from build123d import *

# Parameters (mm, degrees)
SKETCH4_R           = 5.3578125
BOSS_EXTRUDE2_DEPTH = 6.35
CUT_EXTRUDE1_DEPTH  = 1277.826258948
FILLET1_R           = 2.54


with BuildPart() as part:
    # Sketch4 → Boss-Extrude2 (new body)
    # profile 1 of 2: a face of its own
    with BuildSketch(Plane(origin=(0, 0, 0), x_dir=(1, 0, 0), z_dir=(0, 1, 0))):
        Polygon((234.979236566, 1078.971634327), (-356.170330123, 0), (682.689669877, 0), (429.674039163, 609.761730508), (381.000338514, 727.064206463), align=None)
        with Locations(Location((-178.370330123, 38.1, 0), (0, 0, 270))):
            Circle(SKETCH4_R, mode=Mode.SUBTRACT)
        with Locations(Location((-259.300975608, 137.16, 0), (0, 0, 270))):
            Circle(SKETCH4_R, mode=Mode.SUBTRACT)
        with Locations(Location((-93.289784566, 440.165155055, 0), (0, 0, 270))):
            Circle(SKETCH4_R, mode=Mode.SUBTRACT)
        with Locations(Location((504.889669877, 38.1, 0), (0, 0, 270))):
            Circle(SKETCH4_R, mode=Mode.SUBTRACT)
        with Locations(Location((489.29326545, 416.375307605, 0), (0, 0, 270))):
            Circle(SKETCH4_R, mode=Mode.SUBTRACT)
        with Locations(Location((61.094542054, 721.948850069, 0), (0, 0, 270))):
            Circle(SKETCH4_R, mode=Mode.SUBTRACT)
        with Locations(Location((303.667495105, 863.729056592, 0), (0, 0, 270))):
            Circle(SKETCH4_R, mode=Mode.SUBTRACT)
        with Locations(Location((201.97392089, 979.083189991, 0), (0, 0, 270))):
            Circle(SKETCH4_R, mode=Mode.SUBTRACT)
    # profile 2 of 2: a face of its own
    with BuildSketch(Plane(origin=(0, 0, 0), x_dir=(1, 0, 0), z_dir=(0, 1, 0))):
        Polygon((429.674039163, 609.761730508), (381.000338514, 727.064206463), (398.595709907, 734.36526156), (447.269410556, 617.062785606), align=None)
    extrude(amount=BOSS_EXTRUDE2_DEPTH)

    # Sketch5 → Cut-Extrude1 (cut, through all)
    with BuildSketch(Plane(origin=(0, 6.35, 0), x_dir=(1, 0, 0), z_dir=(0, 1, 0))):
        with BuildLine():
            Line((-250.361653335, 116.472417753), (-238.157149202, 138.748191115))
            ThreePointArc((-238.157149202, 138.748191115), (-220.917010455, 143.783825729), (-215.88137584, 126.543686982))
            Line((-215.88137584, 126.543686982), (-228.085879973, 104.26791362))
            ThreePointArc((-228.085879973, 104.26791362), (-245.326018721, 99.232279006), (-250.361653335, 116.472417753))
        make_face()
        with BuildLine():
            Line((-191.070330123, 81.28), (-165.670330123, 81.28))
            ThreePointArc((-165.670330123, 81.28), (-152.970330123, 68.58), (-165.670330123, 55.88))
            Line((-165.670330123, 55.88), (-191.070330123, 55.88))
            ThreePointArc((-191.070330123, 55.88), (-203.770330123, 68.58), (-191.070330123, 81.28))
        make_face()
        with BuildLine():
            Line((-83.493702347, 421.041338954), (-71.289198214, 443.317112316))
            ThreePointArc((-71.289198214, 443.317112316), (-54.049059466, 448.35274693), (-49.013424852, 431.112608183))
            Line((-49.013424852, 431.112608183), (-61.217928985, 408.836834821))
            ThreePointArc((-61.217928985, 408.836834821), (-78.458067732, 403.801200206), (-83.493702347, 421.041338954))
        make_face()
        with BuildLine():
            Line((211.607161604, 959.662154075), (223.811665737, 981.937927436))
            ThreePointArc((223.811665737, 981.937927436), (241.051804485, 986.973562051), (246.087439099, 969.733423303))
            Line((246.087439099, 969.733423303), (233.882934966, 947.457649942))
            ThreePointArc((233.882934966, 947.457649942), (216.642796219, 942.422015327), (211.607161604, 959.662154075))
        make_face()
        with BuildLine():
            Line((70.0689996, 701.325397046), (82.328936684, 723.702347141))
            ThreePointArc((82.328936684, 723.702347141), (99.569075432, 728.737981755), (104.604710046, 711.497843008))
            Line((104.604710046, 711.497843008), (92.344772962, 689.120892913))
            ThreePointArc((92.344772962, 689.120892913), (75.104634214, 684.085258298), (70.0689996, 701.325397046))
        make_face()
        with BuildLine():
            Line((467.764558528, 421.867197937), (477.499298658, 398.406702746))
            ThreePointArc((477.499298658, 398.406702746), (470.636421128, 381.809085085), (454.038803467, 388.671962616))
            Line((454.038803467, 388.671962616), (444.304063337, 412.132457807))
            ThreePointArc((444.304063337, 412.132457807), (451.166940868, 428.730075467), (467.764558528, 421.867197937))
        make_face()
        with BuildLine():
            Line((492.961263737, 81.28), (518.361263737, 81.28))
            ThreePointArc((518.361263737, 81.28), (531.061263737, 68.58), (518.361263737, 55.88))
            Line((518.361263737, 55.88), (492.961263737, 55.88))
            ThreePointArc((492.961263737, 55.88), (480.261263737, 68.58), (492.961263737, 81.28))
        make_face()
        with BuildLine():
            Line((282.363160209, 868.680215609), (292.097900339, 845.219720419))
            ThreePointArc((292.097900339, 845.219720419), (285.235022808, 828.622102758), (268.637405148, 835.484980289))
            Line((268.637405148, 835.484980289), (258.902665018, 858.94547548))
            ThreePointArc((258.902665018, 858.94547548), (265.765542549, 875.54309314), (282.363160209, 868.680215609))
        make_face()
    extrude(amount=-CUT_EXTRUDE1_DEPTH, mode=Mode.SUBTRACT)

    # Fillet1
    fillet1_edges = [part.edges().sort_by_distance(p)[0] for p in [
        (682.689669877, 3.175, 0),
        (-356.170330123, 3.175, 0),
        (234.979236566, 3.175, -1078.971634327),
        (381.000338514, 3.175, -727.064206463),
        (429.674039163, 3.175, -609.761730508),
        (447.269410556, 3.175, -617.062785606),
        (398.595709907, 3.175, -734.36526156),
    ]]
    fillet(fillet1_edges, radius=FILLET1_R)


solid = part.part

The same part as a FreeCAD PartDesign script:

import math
import FreeCAD as App
import Part
import Sketcher

V = App.Vector
Q = App.Units.Quantity


def edges_at(feature, points):
    """Names of the edges that pass closest to the given points."""
    edges = feature.Shape.Edges
    near = lambda p: min(range(len(edges)), key=lambda i: edges[i].distToShape(Part.Vertex(*p))[0])
    return sorted({f"Edge{near(p) + 1}" for p in points})


def add_polygon(sketch, points):
    """Adds a closed chain of lines whose ends are joined by coincident constraints."""
    first, n = sketch.GeometryCount, len(points)
    for a, b in zip(points, points[1:] + points[:1]):
        sketch.addGeometry(Part.LineSegment(App.Vector(*a, 0), App.Vector(*b, 0)), False)
    for i in range(n):
        sketch.addConstraint(Sketcher.Constraint("Coincident", first + i, 2, first + (i + 1) % n, 1))

doc = App.newDocument("Part")
body = doc.addObject("PartDesign::Body", "Body")

# Sketch on XZ plane
sketch1 = body.newObject("Sketcher::SketchObject", "Sketch")
sketch1.AttachmentSupport = (doc.getObject("XZ_Plane"), [""])
sketch1.MapMode = "FlatFace"
add_polygon(sketch1, [(235, -1079), (-356, 0), (683, 0), (430, -610), (447, -617), (399, -734), (381, -727)])  # lines 0-6
sketch1.addGeometry(Part.Circle(V(-178, -38, 0), V(0, 0, 1), 5), False)  # 7
sketch1.addGeometry(Part.Circle(V(-259, -137, 0), V(0, 0, 1), 5), False)  # 8
sketch1.addGeometry(Part.Circle(V(-93, -440, 0), V(0, 0, 1), 5), False)  # 9
sketch1.addGeometry(Part.Circle(V(505, -38, 0), V(0, 0, 1), 5), False)  # 10
sketch1.addGeometry(Part.Circle(V(489, -416, 0), V(0, 0, 1), 5), False)  # 11
sketch1.addGeometry(Part.Circle(V(61, -722, 0), V(0, 0, 1), 5), False)  # 12
sketch1.addGeometry(Part.Circle(V(304, -864, 0), V(0, 0, 1), 5), False)  # 13
sketch1.addGeometry(Part.Circle(V(202, -979, 0), V(0, 0, 1), 5), False)  # 14
sketch1.addConstraint(Sketcher.Constraint("Horizontal", 1))
sketch1.addConstraint(Sketcher.Constraint("Equal", 7, 8))
sketch1.addConstraint(Sketcher.Constraint("Equal", 8, 9))
sketch1.addConstraint(Sketcher.Constraint("Equal", 9, 10))
sketch1.addConstraint(Sketcher.Constraint("Equal", 10, 11))
sketch1.addConstraint(Sketcher.Constraint("Equal", 11, 12))
sketch1.addConstraint(Sketcher.Constraint("Equal", 12, 13))
sketch1.addConstraint(Sketcher.Constraint("Equal", 13, 14))
sketch1.addConstraint(Sketcher.Constraint("PointOnObject", 0, 2, -1))
sketch1.addConstraint(Sketcher.Constraint("Perpendicular", 2, 3))
sketch1.addConstraint(Sketcher.Constraint("Perpendicular", 3, 4))
sketch1.addConstraint(Sketcher.Constraint("Perpendicular", 4, 5))
sketch1.addConstraint(Sketcher.Constraint("Perpendicular", 5, 6))
sketch1.addConstraint(Sketcher.Constraint("Horizontal", 7, 3, 10, 3))
sketch1.addConstraint(Sketcher.Constraint("Equal", 3, 5))
sketch1.addConstraint(Sketcher.Constraint("Distance", 4, Q("5 in")))
sketch1.addConstraint(Sketcher.Constraint("Distance", 6, Q("15 in")))
sketch1.addConstraint(Sketcher.Constraint("Diameter", 7, Q("0.421875 in")))
sketch1.addConstraint(Sketcher.Constraint("DistanceX", 1, 1, 1, 2, Q("40.9 in")))
sketch1.addConstraint(Sketcher.Constraint("DistanceX", 0, 2, 7, 3, Q("7 in")))
sketch1.addConstraint(Sketcher.Constraint("DistanceX", 10, 3, 1, 2, Q("7 in")))
sketch1.addConstraint(Sketcher.Constraint("DistanceY", 7, 3, -1, 1, Q("1.5 in")))
sketch1.addConstraint(Sketcher.Constraint("DistanceY", 8, 3, -1, 1, Q("5.4 in")))
sketch1.addConstraint(Sketcher.Constraint("Distance", 3, Q("0.75 in")))
sketch1.addConstraint(Sketcher.Constraint("Distance", 0, Q("48.437 in")))
sketch1.addConstraint(Sketcher.Constraint("Distance", 2, Q("25.991 in")))
sketch1.addConstraint(Sketcher.Constraint("DistanceX", 8, 3, -1, 1, Q("10.2086998 in")))
sketch1.addConstraint(Sketcher.Constraint("DistanceX", 13, 3, 5, 2, Q("3.0446001 in")))
sketch1.addConstraint(Sketcher.Constraint("DistanceY", 13, 3, 9, 3, 423.563902))
sketch1.addConstraint(Sketcher.Constraint("DistanceX", 7, 3, -1, 1, 178.37033))
sketch1.addConstraint(Sketcher.Constraint("DistanceY", 12, 3, -1, 1, 721.94885))
sketch1.addConstraint(Sketcher.Constraint("DistanceX", -1, 1, 14, 3, 201.973921))
sketch1.addConstraint(Sketcher.Constraint("DistanceY", 14, 3, -1, 1, 979.08319))
sketch1.addConstraint(Sketcher.Constraint("DistanceX", 8, 3, 9, 3, 166.011191))
sketch1.addConstraint(Sketcher.Constraint("DistanceX", 9, 3, 11, 3, 582.58305))
sketch1.addConstraint(Sketcher.Constraint("DistanceY", 13, 3, 11, 3, 447.353749))
sketch1.addConstraint(Sketcher.Constraint("DistanceX", 12, 3, 14, 3, 140.879379))
sketch1.addConstraint(Sketcher.Constraint("DistanceY", 3, 2, 11, 3, 200.687478))
pad1 = body.newObject("PartDesign::Pad", "Pad")
pad1.Profile = sketch1
pad1.Length = Q("0.25 in")
pad1.Reversed = True

# Sketch on XZ plane
sketch2 = body.newObject("Sketcher::SketchObject", "Sketch001")
sketch2.AttachmentSupport = (doc.getObject("XZ_Plane"), [""])
sketch2.MapMode = "FlatFace"
sketch2.AttachmentOffset = App.Placement(V(0, 0, -0.25 * 25.4), App.Rotation())
sketch2.addGeometry(Part.LineSegment(V(-238, -139, 0), V(-250, -116, 0)), False)
sketch2.addGeometry(Part.ArcOfCircle(Part.Circle(V(-239, -110, 0), V(0, 0, 1), 13), math.radians(29), math.radians(209)), False)
sketch2.addGeometry(Part.LineSegment(V(-228, -104, 0), V(-216, -127, 0)), False)
sketch2.addGeometry(Part.ArcOfCircle(Part.Circle(V(-227, -133, 0), V(0, 0, 1), 13), math.radians(-151), math.radians(29)), False)
sketch2.addGeometry(Part.LineSegment(V(-166, -81, 0), V(-191, -81, 0)), False)
sketch2.addGeometry(Part.ArcOfCircle(Part.Circle(V(-191, -69, 0), V(0, 0, 1), 13), math.radians(90), math.radians(270)), False)
sketch2.addGeometry(Part.LineSegment(V(-191, -56, 0), V(-166, -56, 0)), False)
sketch2.addGeometry(Part.ArcOfCircle(Part.Circle(V(-166, -69, 0), V(0, 0, 1), 13), math.radians(-90), math.radians(90)), False)
sketch2.addGeometry(Part.LineSegment(V(-71, -443, 0), V(-83, -421, 0)), False)
sketch2.addGeometry(Part.ArcOfCircle(Part.Circle(V(-72, -415, 0), V(0, 0, 1), 13), math.radians(29), math.radians(209)), False)
sketch2.addGeometry(Part.LineSegment(V(-61, -409, 0), V(-49, -431, 0)), False)
sketch2.addGeometry(Part.ArcOfCircle(Part.Circle(V(-60, -437, 0), V(0, 0, 1), 13), math.radians(-151), math.radians(29)), False)
sketch2.addGeometry(Part.LineSegment(V(224, -982, 0), V(212, -960, 0)), False)
sketch2.addGeometry(Part.ArcOfCircle(Part.Circle(V(223, -954, 0), V(0, 0, 1), 13), math.radians(29), math.radians(209)), False)
sketch2.addGeometry(Part.LineSegment(V(234, -947, 0), V(246, -970, 0)), False)
sketch2.addGeometry(Part.ArcOfCircle(Part.Circle(V(235, -976, 0), V(0, 0, 1), 13), math.radians(-151), math.radians(29)), False)
sketch2.addGeometry(Part.LineSegment(V(82, -724, 0), V(70, -701, 0)), False)
sketch2.addGeometry(Part.ArcOfCircle(Part.Circle(V(81, -695, 0), V(0, 0, 1), 13), math.radians(29), math.radians(209)), False)
sketch2.addGeometry(Part.LineSegment(V(92, -689, 0), V(105, -711, 0)), False)
sketch2.addGeometry(Part.ArcOfCircle(Part.Circle(V(93, -718, 0), V(0, 0, 1), 13), math.radians(-151), math.radians(29)), False)
sketch2.addGeometry(Part.LineSegment(V(477, -398, 0), V(468, -422, 0)), False)
sketch2.addGeometry(Part.ArcOfCircle(Part.Circle(V(456, -417, 0), V(0, 0, 1), 13), math.radians(157), math.radians(337)), False)
sketch2.addGeometry(Part.LineSegment(V(444, -412, 0), V(454, -389, 0)), False)
sketch2.addGeometry(Part.ArcOfCircle(Part.Circle(V(466, -394, 0), V(0, 0, 1), 13), math.radians(-23), math.radians(157)), False)
sketch2.addGeometry(Part.LineSegment(V(518, -81, 0), V(493, -81, 0)), False)
sketch2.addGeometry(Part.ArcOfCircle(Part.Circle(V(493, -69, 0), V(0, 0, 1), 13), math.radians(90), math.radians(270)), False)
sketch2.addGeometry(Part.LineSegment(V(493, -56, 0), V(518, -56, 0)), False)
sketch2.addGeometry(Part.ArcOfCircle(Part.Circle(V(518, -69, 0), V(0, 0, 1), 13), math.radians(-90), math.radians(90)), False)
sketch2.addGeometry(Part.LineSegment(V(292, -845, 0), V(282, -869, 0)), False)
sketch2.addGeometry(Part.ArcOfCircle(Part.Circle(V(271, -864, 0), V(0, 0, 1), 13), math.radians(157), math.radians(337)), False)
sketch2.addGeometry(Part.LineSegment(V(259, -859, 0), V(269, -835, 0)), False)
sketch2.addGeometry(Part.ArcOfCircle(Part.Circle(V(280, -840, 0), V(0, 0, 1), 13), math.radians(-23), math.radians(157)), False)
sketch2.addConstraint(Sketcher.Constraint("Tangent", 0, 2, 1, 2))
sketch2.addConstraint(Sketcher.Constraint("Tangent", 1, 1, 2, 1))
sketch2.addConstraint(Sketcher.Constraint("Tangent", 2, 2, 3, 2))
sketch2.addConstraint(Sketcher.Constraint("Tangent", 3, 1, 0, 1))
sketch2.addConstraint(Sketcher.Constraint("Tangent", 4, 2, 5, 2))
sketch2.addConstraint(Sketcher.Constraint("Tangent", 5, 1, 6, 1))
sketch2.addConstraint(Sketcher.Constraint("Tangent", 6, 2, 7, 2))
sketch2.addConstraint(Sketcher.Constraint("Tangent", 7, 1, 4, 1))
sketch2.addConstraint(Sketcher.Constraint("Tangent", 8, 2, 9, 2))
sketch2.addConstraint(Sketcher.Constraint("Tangent", 9, 1, 10, 1))
sketch2.addConstraint(Sketcher.Constraint("Tangent", 10, 2, 11, 2))
sketch2.addConstraint(Sketcher.Constraint("Tangent", 11, 1, 8, 1))
sketch2.addConstraint(Sketcher.Constraint("Tangent", 12, 2, 13, 2))
sketch2.addConstraint(Sketcher.Constraint("Tangent", 13, 1, 14, 1))
sketch2.addConstraint(Sketcher.Constraint("Tangent", 14, 2, 15, 2))
sketch2.addConstraint(Sketcher.Constraint("Tangent", 15, 1, 12, 1))
sketch2.addConstraint(Sketcher.Constraint("Tangent", 16, 2, 17, 2))
sketch2.addConstraint(Sketcher.Constraint("Tangent", 17, 1, 18, 1))
sketch2.addConstraint(Sketcher.Constraint("Tangent", 18, 2, 19, 2))
sketch2.addConstraint(Sketcher.Constraint("Tangent", 19, 1, 16, 1))
sketch2.addConstraint(Sketcher.Constraint("Tangent", 20, 2, 21, 2))
sketch2.addConstraint(Sketcher.Constraint("Tangent", 21, 1, 22, 1))
sketch2.addConstraint(Sketcher.Constraint("Tangent", 22, 2, 23, 2))
sketch2.addConstraint(Sketcher.Constraint("Tangent", 23, 1, 20, 1))
sketch2.addConstraint(Sketcher.Constraint("Tangent", 24, 2, 25, 2))
sketch2.addConstraint(Sketcher.Constraint("Tangent", 25, 1, 26, 1))
sketch2.addConstraint(Sketcher.Constraint("Tangent", 26, 2, 27, 2))
sketch2.addConstraint(Sketcher.Constraint("Tangent", 27, 1, 24, 1))
sketch2.addConstraint(Sketcher.Constraint("Tangent", 28, 2, 29, 2))
sketch2.addConstraint(Sketcher.Constraint("Tangent", 29, 1, 30, 1))
sketch2.addConstraint(Sketcher.Constraint("Tangent", 30, 2, 31, 2))
sketch2.addConstraint(Sketcher.Constraint("Tangent", 31, 1, 28, 1))
sketch2.addConstraint(Sketcher.Constraint("Horizontal", 4))
sketch2.addConstraint(Sketcher.Constraint("Horizontal", 6))
sketch2.addConstraint(Sketcher.Constraint("Horizontal", 24))
sketch2.addConstraint(Sketcher.Constraint("Horizontal", 26))
sketch2.addConstraint(Sketcher.Constraint("Equal", 1, 3))
sketch2.addConstraint(Sketcher.Constraint("Equal", 3, 5))
sketch2.addConstraint(Sketcher.Constraint("Equal", 7, 9))
sketch2.addConstraint(Sketcher.Constraint("Equal", 9, 11))
sketch2.addConstraint(Sketcher.Constraint("Equal", 11, 13))
sketch2.addConstraint(Sketcher.Constraint("Equal", 13, 15))
sketch2.addConstraint(Sketcher.Constraint("Equal", 15, 17))
sketch2.addConstraint(Sketcher.Constraint("Equal", 17, 19))
sketch2.addConstraint(Sketcher.Constraint("Equal", 19, 21))
sketch2.addConstraint(Sketcher.Constraint("Equal", 21, 23))
sketch2.addConstraint(Sketcher.Constraint("Equal", 23, 25))
sketch2.addConstraint(Sketcher.Constraint("Equal", 27, 29))
sketch2.addConstraint(Sketcher.Constraint("Equal", 29, 31))
sketch2.addConstraint(Sketcher.Constraint("Parallel", 2, 8))
sketch2.addConstraint(Sketcher.Constraint("Parallel", 10, 12))
sketch2.addConstraint(Sketcher.Constraint("Parallel", 14, 16))
sketch2.addConstraint(Sketcher.Constraint("Parallel", 22, 28))
sketch2.addConstraint(Sketcher.Constraint("Horizontal", 7, 3, 25, 3))
sketch2.addConstraint(Sketcher.Constraint("Equal", 6, 24))
sketch2.addConstraint(Sketcher.Constraint("Equal", 2, 8))
sketch2.addConstraint(Sketcher.Constraint("Equal", 10, 12))
sketch2.addConstraint(Sketcher.Constraint("Equal", 14, 20))
sketch2.addConstraint(Sketcher.Constraint("Equal", 22, 28))
sketch2.addConstraint(Sketcher.Constraint("Radius", 1, Q("0.5 in")))
sketch2.addConstraint(Sketcher.Constraint("DistanceX", 4, 2, 4, 1, Q("1 in")))
sketch2.addConstraint(Sketcher.Constraint("Distance", 0, Q("1 in")))
sketch2.addConstraint(Sketcher.Constraint("DistanceY", 5, 3, -1, 1, Q("2.7 in")))
sketch2.addConstraint(Sketcher.Constraint("DistanceX", 11, 1, -1, 1, 71.289198))
sketch2.addConstraint(Sketcher.Constraint("DistanceX", -1, 1, 16, 2, 70.069))
sketch2.addConstraint(Sketcher.Constraint("DistanceX", -1, 1, 23, 1, 477.499299))
sketch2.addConstraint(Sketcher.Constraint("DistanceX", -1, 1, 31, 1, 292.0979))
sketch2.addConstraint(Sketcher.Constraint("DistanceX", 9, 3, 17, 3, 153.562702))
sketch2.addConstraint(Sketcher.Constraint("DistanceY", 29, 3, 17, 3, 168.589701))
sketch2.addConstraint(Sketcher.Constraint("DistanceX", 15, 3, 31, 3, 45.4181))
sketch2.addConstraint(Sketcher.Constraint("DistanceY", 8, 2, 3, 3, 288.3954))
sketch2.addConstraint(Sketcher.Constraint("DistanceY", 13, 1, 31, 3, 107.1053))
sketch2.addConstraint(Sketcher.Constraint("DistanceY", 19, 3, 16, 2, 16.274698))
sketch2.addConstraint(Sketcher.Constraint("DistanceX", 21, 1, 25, 3, 48.6572))
sketch2.addConstraint(Sketcher.Constraint("DistanceY", 3, 3, -1, 1, 132.645939))
sketch2.addConstraint(Sketcher.Constraint("DistanceX", 5, 3, -1, 1, 191.07033))
sketch2.addConstraint(Sketcher.Constraint("DistanceX", -1, 1, 13, 3, 222.745048))
sketch2.addConstraint(Sketcher.Constraint("DistanceY", 31, 3, -1, 1, 840.35235))
sketch2.addConstraint(Sketcher.Constraint("DistanceX", 1, 1, -1, 1, 228.08588))
sketch2.addConstraint(Sketcher.Constraint("DistanceY", 21, 3, 9, 3, 2.060741))
pocket1 = body.newObject("PartDesign::Pocket", "Pocket")
pocket1.Profile = sketch2
pocket1.Type = "ThroughAll"
pocket1.Reversed = True
doc.recompute()

fillet = body.newObject("PartDesign::Fillet", "Fillet")
fillet.Base = (pocket1, edges_at(pocket1, [
    (682.69, 3.175, 0),
    (-356.17, 3.175, 0),
    (234.979, 3.175, -1078.972),
    (381, 3.175, -727.064),
    (429.674, 3.175, -609.762),
    (447.269, 3.175, -617.063),
    (398.596, 3.175, -734.365),
]))
fillet.Radius = Q("0.1 in")

doc.recompute()
